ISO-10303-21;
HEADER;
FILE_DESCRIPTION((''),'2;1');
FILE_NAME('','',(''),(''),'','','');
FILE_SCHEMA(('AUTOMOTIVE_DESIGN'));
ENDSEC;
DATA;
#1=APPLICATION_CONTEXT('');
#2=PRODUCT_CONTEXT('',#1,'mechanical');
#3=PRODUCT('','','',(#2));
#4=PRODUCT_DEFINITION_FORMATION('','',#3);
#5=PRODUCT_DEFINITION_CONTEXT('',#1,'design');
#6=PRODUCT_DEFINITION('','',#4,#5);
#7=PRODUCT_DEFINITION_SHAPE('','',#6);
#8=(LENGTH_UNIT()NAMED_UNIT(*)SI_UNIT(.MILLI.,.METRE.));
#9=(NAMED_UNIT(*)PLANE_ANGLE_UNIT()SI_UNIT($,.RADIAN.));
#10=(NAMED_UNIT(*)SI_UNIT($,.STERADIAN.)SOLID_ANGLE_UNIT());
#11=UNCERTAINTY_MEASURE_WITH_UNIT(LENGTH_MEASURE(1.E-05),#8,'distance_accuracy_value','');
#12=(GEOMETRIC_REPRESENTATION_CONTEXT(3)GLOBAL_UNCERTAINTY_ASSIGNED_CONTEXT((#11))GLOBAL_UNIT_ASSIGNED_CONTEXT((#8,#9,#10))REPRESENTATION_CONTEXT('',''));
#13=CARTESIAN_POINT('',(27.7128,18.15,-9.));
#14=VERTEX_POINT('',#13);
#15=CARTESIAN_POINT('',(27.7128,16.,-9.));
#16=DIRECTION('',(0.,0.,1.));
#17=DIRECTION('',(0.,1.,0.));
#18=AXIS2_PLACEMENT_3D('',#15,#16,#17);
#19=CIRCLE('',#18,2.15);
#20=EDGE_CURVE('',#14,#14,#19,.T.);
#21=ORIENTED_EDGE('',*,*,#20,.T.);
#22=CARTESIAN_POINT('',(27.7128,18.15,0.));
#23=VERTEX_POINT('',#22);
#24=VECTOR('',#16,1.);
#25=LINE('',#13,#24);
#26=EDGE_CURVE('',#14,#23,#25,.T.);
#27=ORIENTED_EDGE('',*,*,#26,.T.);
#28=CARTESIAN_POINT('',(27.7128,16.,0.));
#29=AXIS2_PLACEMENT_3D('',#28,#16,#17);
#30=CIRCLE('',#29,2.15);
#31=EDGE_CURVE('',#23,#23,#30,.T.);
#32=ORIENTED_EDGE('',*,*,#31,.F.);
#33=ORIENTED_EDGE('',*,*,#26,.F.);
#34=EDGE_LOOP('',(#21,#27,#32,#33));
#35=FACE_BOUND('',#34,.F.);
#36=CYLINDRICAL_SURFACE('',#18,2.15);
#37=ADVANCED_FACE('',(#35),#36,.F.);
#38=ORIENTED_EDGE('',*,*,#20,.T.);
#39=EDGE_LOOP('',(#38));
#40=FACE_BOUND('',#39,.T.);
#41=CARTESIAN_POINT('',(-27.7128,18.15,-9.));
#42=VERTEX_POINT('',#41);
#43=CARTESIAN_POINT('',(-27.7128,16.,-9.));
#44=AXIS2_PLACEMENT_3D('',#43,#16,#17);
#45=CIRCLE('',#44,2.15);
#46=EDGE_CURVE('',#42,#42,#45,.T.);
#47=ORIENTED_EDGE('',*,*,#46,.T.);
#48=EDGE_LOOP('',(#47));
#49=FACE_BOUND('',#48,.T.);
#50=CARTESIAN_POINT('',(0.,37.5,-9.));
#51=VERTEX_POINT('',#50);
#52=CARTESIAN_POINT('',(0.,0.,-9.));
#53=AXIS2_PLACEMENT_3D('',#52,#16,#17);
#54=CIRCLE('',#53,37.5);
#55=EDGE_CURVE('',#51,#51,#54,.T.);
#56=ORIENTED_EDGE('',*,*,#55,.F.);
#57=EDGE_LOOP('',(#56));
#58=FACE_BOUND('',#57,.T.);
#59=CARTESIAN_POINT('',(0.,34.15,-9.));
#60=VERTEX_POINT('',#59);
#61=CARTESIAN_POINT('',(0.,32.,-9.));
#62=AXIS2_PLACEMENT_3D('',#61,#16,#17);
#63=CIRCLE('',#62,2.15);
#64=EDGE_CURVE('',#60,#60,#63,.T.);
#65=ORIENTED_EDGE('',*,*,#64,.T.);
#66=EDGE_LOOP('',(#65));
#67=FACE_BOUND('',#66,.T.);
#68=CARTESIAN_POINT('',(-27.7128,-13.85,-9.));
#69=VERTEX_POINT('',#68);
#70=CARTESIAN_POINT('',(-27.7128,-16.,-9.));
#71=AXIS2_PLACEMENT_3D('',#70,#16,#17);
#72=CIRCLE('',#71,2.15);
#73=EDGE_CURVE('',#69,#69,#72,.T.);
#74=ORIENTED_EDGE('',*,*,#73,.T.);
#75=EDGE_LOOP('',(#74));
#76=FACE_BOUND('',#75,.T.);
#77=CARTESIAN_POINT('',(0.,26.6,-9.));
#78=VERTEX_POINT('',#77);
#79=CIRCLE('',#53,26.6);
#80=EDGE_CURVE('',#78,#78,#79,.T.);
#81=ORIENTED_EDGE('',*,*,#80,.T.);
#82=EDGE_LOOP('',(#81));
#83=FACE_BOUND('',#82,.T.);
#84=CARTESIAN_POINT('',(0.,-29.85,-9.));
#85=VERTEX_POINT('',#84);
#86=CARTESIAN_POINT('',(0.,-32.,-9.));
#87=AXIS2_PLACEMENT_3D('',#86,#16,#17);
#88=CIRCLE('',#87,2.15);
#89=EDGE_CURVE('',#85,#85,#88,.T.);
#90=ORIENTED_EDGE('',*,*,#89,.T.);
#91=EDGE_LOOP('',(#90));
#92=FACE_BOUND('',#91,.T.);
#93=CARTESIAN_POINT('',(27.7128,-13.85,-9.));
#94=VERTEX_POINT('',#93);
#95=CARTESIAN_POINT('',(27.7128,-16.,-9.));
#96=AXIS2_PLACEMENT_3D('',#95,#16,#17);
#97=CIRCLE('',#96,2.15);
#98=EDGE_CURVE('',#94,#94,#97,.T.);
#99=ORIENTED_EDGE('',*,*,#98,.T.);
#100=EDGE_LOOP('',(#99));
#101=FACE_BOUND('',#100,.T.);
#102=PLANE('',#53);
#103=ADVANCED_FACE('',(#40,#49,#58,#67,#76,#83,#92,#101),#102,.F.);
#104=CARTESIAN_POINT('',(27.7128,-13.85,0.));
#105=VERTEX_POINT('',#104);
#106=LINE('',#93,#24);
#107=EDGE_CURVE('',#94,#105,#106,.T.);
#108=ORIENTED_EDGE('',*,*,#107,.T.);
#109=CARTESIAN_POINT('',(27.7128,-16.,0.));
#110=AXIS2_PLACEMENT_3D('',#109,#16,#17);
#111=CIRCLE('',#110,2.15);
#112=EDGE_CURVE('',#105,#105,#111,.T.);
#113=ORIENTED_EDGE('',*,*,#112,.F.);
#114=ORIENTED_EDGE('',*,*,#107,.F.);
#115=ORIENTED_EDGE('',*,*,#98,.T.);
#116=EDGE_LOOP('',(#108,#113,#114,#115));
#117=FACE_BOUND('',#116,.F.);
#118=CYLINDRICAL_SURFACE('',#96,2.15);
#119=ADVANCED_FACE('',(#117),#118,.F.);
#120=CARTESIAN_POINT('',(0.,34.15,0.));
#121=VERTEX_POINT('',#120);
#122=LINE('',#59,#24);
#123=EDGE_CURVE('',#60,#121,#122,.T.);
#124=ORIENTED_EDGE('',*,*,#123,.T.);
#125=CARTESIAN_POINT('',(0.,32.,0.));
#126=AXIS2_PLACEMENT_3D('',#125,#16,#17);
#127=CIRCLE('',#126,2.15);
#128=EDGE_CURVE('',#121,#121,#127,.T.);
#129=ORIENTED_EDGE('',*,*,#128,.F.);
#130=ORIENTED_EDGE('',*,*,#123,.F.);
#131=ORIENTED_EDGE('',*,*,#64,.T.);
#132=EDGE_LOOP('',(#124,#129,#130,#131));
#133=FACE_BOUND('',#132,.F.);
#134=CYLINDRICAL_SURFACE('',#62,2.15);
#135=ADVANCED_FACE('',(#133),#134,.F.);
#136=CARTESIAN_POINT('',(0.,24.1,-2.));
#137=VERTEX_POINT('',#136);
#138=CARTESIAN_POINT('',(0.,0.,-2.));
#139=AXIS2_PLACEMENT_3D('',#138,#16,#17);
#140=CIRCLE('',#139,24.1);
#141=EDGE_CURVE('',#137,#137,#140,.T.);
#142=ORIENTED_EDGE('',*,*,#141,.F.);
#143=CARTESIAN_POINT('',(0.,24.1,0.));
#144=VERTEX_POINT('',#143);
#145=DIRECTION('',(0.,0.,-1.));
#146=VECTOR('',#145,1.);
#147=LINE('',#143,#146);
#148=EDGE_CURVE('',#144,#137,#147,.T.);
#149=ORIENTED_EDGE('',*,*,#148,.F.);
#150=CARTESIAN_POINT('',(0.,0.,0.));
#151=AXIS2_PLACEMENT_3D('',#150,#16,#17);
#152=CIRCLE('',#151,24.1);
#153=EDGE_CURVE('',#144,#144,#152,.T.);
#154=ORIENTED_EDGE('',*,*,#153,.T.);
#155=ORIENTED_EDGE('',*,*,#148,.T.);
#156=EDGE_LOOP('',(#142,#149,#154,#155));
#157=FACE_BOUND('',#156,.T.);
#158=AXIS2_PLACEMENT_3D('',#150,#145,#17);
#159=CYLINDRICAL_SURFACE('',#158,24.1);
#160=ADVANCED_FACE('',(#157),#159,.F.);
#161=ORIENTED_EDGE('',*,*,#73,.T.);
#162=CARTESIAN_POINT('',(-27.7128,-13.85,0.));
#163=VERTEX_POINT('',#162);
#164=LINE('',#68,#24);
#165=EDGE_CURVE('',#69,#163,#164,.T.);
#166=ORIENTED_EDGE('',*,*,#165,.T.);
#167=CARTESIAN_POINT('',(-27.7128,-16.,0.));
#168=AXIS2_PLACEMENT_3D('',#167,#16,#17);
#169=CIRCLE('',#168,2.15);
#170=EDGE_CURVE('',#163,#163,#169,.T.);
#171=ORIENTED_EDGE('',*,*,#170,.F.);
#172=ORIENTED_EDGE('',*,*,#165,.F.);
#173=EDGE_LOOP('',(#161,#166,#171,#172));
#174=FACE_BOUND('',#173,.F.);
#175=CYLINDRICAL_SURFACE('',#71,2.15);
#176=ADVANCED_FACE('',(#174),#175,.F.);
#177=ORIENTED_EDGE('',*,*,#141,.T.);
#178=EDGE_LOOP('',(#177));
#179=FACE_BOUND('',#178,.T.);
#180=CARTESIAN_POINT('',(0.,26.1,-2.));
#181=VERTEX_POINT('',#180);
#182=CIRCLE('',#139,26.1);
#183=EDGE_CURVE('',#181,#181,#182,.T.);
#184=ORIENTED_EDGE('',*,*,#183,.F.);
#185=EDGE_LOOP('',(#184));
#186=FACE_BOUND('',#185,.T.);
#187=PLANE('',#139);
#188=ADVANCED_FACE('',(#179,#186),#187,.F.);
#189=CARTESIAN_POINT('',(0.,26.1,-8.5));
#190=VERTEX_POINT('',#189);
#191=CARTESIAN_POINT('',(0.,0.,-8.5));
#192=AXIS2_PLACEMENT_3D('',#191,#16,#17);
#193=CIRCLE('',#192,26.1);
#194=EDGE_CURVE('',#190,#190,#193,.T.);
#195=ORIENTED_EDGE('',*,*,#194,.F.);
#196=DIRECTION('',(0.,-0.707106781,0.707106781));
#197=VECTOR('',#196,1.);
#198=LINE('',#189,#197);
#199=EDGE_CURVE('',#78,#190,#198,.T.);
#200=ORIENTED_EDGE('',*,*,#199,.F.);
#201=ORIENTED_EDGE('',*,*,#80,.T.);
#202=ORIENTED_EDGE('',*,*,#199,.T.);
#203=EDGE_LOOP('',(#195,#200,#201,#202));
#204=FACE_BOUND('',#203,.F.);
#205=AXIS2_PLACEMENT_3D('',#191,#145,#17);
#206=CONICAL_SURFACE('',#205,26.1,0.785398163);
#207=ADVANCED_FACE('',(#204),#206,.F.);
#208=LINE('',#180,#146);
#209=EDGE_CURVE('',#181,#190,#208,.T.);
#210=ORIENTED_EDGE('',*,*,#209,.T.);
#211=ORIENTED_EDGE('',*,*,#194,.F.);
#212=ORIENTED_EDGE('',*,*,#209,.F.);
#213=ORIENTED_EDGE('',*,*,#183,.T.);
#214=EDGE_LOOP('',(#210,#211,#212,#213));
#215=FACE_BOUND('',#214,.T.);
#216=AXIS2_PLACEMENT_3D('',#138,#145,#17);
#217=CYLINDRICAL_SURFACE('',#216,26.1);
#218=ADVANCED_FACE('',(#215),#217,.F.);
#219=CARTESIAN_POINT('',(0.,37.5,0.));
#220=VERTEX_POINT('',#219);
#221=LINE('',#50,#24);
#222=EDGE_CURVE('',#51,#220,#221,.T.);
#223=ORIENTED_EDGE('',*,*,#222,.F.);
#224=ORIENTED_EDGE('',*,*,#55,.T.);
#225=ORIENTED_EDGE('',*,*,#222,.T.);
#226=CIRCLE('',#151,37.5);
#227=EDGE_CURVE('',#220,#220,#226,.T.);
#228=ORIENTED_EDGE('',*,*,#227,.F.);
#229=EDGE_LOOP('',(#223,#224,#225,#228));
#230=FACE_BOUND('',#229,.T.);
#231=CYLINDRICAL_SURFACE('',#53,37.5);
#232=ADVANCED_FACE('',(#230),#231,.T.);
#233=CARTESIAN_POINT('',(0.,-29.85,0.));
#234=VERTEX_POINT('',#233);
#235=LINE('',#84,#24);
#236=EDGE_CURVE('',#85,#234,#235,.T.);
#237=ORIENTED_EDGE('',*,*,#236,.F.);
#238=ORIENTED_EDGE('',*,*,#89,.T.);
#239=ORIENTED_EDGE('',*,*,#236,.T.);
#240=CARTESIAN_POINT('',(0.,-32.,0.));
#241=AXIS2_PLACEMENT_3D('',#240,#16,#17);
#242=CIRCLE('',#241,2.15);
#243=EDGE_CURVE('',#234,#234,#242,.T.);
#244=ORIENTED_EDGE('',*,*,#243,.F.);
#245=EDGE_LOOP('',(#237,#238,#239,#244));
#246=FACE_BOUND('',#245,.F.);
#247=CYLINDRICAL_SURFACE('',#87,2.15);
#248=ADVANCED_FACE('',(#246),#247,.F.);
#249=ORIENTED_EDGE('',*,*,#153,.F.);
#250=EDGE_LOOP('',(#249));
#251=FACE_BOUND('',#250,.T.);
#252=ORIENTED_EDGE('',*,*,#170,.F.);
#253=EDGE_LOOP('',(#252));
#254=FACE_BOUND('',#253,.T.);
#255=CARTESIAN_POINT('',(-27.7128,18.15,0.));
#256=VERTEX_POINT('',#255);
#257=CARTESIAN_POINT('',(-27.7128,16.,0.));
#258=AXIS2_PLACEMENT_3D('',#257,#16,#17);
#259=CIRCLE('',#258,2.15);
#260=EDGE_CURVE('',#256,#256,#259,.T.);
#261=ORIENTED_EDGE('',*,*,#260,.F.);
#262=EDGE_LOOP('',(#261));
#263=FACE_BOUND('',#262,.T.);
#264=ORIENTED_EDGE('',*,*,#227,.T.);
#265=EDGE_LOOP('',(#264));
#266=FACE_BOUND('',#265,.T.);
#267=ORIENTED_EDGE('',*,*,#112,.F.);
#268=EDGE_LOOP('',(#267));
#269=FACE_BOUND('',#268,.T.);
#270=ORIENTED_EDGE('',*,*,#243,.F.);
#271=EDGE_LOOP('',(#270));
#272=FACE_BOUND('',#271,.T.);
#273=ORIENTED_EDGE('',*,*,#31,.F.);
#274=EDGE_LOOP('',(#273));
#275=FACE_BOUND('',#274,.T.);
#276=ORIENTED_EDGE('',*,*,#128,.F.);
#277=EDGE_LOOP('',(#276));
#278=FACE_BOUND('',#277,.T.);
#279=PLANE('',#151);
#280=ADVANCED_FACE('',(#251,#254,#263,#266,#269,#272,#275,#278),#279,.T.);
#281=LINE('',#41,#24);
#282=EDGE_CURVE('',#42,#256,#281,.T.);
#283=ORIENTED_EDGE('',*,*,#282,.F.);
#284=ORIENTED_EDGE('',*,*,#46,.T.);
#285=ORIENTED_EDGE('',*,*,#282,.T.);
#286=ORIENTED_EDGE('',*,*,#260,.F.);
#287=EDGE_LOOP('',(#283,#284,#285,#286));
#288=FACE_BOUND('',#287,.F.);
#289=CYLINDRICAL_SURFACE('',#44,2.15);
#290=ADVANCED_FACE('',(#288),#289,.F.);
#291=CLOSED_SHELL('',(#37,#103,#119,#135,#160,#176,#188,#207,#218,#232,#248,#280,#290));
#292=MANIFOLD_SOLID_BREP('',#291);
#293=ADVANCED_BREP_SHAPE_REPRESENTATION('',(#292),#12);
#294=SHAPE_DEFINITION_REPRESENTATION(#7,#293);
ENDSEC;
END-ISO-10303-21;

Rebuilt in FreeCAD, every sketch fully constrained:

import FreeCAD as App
import Part
import Sketcher
Q = App.Units.Quantity


def edges_at(feature, points):
    """Names of the edges that pass closest to the given points."""
    edges = feature.Shape.Edges
    near = lambda p: min(range(len(edges)), key=lambda i: edges[i].distToShape(Part.Vertex(*p))[0])
    return sorted({f"Edge{near(p) + 1}" for p in points})


def add_polygon(sketch, points):
    """Adds a closed chain of lines whose ends are joined by coincident constraints."""
    first, n = sketch.GeometryCount, len(points)
    for a, b in zip(points, points[1:] + points[:1]):
        sketch.addGeometry(Part.LineSegment(App.Vector(*a, 0), App.Vector(*b, 0)), False)
    for i in range(n):
        sketch.addConstraint(Sketcher.Constraint("Coincident", first + i, 2, first + (i + 1) % n, 1))

doc = App.newDocument("Part")
body = doc.addObject("PartDesign::Body", "Body")

# Sketch on YZ plane
sketch1 = body.newObject("Sketcher::SketchObject", "Sketch")
sketch1.AttachmentSupport = (doc.getObject("YZ_Plane"), [""])
sketch1.MapMode = "FlatFace"
add_polygon(sketch1, [(37.5, 0), (24.1, 0), (24.1, -2), (26.1, -2), (26.1, -9), (37.5, -9)])  # lines 0-5
sketch1.addConstraint([
    Sketcher.Constraint("Horizontal", 0),
    Sketcher.Constraint("Vertical", 1),
    Sketcher.Constraint("Horizontal", 2),
    Sketcher.Constraint("Vertical", 3),
    Sketcher.Constraint("Horizontal", 4),
    Sketcher.Constraint("Vertical", 5),
    Sketcher.Constraint("PointOnObject", 0, 2, -1),
    Sketcher.Constraint("Equal", 2, 1),
    Sketcher.Constraint("DistanceX", 2, 1, 2, 2, Q("2 mm")),
    Sketcher.Constraint("DistanceY", 3, 2, 3, 1, Q("7 mm")),
    Sketcher.Constraint("DistanceX", -1, 1, 2, 2, Q("26.1 mm")),
    Sketcher.Constraint("DistanceX", -1, 1, 4, 2, Q("37.5 mm")),
])
revolution = body.newObject("PartDesign::Revolution", "Revolution")
revolution.Profile = sketch1
revolution.ReferenceAxis = (sketch1, ["V_Axis"])
revolution.Angle = 360

# Sketch on XY plane
sketch2 = body.newObject("Sketcher::SketchObject", "Sketch001")
sketch2.AttachmentSupport = (doc.getObject("XY_Plane"), [""])
sketch2.MapMode = "FlatFace"
sketch2.AttachmentOffset = App.Placement(App.Vector(0, 0, -9), App.Rotation())
sketch2.addGeometry([
    Part.Circle(App.Vector(0, 32, 0), App.Vector(0, 0, 1), 2.1),  # 0
    Part.Circle(App.Vector(27.7, 16, 0), App.Vector(0, 0, 1), 2.1),  # 1
    Part.Circle(App.Vector(27.7, -16, 0), App.Vector(0, 0, 1), 2.1),  # 2
    Part.Circle(App.Vector(0, -32, 0), App.Vector(0, 0, 1), 2.1),  # 3
    Part.Circle(App.Vector(-27.7, -16, 0), App.Vector(0, 0, 1), 2.1),  # 4
    Part.Circle(App.Vector(-27.7, 16, 0), App.Vector(0, 0, 1), 2.1),  # 5
], False)
sketch2.addConstraint([
    Sketcher.Constraint("Equal", 0, 1),
    Sketcher.Constraint("Equal", 1, 2),
    Sketcher.Constraint("Equal", 2, 3),
    Sketcher.Constraint("Equal", 3, 4),
    Sketcher.Constraint("Equal", 4, 5),
    Sketcher.Constraint("Symmetric", 0, 3, 3, 3, -1, 1),
    Sketcher.Constraint("Symmetric", 1, 3, 4, 3, -1, 1),
    Sketcher.Constraint("Symmetric", 2, 3, 5, 3, -1, 1),
    Sketcher.Constraint("Symmetric", 2, 3, 4, 3, -2),
    Sketcher.Constraint("PointOnObject", 0, 3, -2),
    Sketcher.Constraint("Diameter", 0, Q("4.3 mm")),
    Sketcher.Constraint("DistanceY", -1, 1, 0, 3, Q("32 mm")),
    Sketcher.Constraint("DistanceY", -1, 1, 1, 3, Q("16 mm")),
    Sketcher.Constraint("DistanceX", -1, 1, 1, 3, Q("27.7128 mm")),
])
doc.recompute()
hole = body.newObject("PartDesign::Hole", "Hole")
hole.Profile = sketch2
hole.ThreadType = "None"
hole.Diameter = 4.3
hole.DepthType = "ThroughAll"
hole.Reversed = True
doc.recompute()

chamfer = body.newObject("PartDesign::Chamfer", "Chamfer")
chamfer.Base = (hole, edges_at(hole, [(0, -26.1, -9)]))
chamfer.Size = 0.5

doc.recompute()
